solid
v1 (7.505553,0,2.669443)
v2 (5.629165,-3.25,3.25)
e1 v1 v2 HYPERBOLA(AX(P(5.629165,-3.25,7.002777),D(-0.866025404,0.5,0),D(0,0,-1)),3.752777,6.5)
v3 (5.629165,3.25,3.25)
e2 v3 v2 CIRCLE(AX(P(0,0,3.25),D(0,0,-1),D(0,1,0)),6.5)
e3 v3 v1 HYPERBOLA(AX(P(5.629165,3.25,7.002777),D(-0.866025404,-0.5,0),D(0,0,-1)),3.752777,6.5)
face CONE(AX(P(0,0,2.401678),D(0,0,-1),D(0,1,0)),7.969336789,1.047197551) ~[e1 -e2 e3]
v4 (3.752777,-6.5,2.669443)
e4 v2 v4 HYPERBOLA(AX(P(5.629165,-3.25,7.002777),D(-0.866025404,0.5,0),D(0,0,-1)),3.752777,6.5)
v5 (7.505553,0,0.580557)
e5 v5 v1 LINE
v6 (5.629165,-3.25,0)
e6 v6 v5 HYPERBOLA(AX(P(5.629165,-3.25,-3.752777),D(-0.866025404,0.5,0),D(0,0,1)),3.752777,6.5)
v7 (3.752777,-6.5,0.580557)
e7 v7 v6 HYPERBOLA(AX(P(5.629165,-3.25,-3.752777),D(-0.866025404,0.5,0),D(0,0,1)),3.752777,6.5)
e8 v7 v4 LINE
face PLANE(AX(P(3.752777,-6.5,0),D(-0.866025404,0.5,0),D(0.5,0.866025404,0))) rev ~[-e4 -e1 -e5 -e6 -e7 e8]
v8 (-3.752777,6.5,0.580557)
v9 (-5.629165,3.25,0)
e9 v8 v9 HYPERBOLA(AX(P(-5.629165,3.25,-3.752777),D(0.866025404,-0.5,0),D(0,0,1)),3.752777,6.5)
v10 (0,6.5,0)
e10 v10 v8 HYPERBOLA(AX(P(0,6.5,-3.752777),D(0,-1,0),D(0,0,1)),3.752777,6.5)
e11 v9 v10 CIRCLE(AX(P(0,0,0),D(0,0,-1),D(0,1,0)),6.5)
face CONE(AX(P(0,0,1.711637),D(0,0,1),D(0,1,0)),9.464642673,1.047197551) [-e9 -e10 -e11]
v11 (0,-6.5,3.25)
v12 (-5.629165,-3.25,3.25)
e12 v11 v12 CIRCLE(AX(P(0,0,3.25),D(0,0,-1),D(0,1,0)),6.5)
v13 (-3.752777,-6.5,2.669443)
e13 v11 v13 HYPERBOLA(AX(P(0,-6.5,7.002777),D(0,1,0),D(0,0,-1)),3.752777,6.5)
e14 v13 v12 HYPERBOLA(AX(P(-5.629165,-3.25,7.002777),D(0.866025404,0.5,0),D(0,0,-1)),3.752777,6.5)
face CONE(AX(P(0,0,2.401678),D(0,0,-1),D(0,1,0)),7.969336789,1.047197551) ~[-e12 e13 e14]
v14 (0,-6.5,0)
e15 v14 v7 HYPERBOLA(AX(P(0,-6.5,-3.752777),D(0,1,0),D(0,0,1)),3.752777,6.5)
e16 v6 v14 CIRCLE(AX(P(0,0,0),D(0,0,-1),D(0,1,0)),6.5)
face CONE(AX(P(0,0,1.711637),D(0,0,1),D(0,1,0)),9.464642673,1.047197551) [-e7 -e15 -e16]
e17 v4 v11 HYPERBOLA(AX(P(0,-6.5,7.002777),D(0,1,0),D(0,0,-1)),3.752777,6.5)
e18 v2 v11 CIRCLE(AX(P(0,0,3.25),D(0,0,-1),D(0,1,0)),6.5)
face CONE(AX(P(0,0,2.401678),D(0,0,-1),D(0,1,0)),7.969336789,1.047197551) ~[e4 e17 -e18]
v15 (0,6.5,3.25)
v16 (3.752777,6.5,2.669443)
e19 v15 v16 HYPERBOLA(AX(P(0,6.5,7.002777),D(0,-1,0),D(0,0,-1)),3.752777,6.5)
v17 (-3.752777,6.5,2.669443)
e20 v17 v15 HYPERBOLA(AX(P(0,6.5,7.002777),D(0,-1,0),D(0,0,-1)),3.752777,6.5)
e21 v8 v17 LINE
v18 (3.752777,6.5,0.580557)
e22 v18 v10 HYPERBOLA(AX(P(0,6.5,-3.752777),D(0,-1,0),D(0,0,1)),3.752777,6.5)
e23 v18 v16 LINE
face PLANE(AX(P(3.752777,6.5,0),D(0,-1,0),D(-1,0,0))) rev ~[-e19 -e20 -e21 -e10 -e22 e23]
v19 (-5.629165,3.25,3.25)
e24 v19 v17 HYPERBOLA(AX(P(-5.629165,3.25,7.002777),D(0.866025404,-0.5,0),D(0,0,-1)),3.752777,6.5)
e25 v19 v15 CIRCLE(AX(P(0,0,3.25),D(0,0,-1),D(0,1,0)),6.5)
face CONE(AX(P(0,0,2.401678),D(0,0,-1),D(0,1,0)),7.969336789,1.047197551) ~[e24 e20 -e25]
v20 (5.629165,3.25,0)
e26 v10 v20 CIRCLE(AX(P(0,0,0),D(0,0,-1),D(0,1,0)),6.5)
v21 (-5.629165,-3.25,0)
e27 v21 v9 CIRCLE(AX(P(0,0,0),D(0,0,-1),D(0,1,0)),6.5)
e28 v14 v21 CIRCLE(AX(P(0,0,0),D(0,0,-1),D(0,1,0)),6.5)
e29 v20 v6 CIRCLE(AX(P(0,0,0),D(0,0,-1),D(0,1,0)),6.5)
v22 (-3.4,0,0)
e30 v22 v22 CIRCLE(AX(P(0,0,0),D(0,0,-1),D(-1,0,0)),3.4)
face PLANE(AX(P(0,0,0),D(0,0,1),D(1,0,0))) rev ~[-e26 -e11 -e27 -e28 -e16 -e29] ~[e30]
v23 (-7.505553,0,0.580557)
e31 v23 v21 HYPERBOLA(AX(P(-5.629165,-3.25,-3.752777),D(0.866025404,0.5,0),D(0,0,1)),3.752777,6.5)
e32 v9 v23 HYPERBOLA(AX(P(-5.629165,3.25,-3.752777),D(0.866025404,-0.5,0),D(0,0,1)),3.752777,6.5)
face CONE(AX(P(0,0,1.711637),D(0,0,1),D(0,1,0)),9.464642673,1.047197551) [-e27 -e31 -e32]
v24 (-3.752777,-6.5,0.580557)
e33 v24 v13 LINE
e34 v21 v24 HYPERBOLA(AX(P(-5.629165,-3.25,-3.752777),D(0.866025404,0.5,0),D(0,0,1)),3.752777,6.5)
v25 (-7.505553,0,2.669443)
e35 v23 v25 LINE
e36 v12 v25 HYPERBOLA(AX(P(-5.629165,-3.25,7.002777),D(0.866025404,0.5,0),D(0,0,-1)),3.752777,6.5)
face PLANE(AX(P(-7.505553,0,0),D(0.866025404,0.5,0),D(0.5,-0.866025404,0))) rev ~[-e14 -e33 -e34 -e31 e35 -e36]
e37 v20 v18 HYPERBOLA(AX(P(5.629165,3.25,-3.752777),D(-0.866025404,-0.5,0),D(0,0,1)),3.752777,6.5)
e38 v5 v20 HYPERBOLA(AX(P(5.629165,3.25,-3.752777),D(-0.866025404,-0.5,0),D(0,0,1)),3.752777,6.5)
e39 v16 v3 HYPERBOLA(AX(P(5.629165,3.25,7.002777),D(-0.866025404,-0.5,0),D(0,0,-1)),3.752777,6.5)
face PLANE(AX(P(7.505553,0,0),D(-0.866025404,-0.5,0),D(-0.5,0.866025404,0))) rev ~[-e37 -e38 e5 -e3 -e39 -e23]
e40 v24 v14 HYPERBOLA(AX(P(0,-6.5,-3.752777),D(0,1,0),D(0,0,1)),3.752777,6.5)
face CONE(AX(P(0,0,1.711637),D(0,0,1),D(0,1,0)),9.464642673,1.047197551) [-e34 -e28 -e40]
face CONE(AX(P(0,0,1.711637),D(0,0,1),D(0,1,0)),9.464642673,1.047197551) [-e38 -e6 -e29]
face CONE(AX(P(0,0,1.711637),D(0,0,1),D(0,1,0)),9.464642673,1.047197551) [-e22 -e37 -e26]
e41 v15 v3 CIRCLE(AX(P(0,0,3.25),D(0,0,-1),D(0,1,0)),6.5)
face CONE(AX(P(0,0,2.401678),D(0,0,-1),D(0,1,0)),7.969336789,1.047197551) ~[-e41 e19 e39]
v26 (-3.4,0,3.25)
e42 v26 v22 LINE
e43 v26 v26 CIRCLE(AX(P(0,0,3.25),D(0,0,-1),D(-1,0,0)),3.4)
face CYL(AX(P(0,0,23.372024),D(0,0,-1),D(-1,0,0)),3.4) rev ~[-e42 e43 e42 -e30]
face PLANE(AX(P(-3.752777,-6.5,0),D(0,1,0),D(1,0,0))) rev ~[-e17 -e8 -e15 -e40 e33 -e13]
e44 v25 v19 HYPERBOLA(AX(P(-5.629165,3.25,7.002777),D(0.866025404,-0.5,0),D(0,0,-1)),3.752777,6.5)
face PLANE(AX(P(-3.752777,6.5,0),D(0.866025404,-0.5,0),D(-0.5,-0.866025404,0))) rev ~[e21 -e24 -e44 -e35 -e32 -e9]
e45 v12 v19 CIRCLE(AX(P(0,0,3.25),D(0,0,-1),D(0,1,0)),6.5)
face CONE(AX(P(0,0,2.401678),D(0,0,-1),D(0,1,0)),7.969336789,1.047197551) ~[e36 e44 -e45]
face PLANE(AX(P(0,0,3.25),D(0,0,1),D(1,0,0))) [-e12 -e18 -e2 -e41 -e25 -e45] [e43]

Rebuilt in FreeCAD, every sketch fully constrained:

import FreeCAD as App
import Part
import Sketcher
from FreeCAD import Vector
Q = App.Units.Quantity

doc = App.newDocument("Part")
params = doc.addObject("Spreadsheet::Sheet", "Params")
for row, (alias, value) in enumerate([
    ("pad1_length", "3.25 mm"),
    ("groove_angle", "360 deg"),
    ("sketch3_diameter", "6.8 mm"),
    ("hole_diameter", "6.8 mm"),
], start=1):
    params.set(f"A{row}", alias)
    params.set(f"B{row}", "=" + value)
    params.setAlias(f"B{row}", alias)

body = doc.addObject("PartDesign::Body", "Body")

# Sketch on XY plane
sketch1 = body.newObject("Sketcher::SketchObject", "Sketch")
sketch1.AttachmentSupport = (doc.getObject("XY_Plane"), [""])
sketch1.MapMode = "FlatFace"
sketch1.addGeometry([
    Part.LineSegment(Vector(3.752777, -6.5, 0), Vector(7.505553, 0, 0)),  # 0
    Part.LineSegment(Vector(7.505553, 0, 0), Vector(3.752777, 6.5, 0)),  # 1
    Part.LineSegment(Vector(3.752777, 6.5, 0), Vector(-3.752777, 6.5, 0)),  # 2
    Part.LineSegment(Vector(-3.752777, 6.5, 0), Vector(-7.505553, 0, 0)),  # 3
    Part.LineSegment(Vector(-7.505553, 0, 0), Vector(-3.752777, -6.5, 0)),  # 4
    Part.LineSegment(Vector(-3.752777, -6.5, 0), Vector(3.752777, -6.5, 0)),  # 5
], False)
sketch1.addConstraint([
    Sketcher.Constraint("Coincident", 0, 2, 1, 1),
    Sketcher.Constraint("Coincident", 1, 2, 2, 1),
    Sketcher.Constraint("Coincident", 2, 2, 3, 1),
    Sketcher.Constraint("Coincident", 3, 2, 4, 1),
    Sketcher.Constraint("Coincident", 4, 2, 5, 1),
    Sketcher.Constraint("Coincident", 5, 2, 0, 1),
    Sketcher.Constraint("Horizontal", 2),
    Sketcher.Constraint("Horizontal", 5),
    Sketcher.Constraint("Symmetric", 0, 2, 3, 2, -1, 1),
    Sketcher.Constraint("Symmetric", 1, 2, 4, 2, -1, 1),
    Sketcher.Constraint("PointOnObject", 0, 2, -1),
    Sketcher.Constraint("Parallel", 0, 3),
    Sketcher.Constraint("Vertical", 2, 2, 4, 2),
    Sketcher.Constraint("Angle", 0, Q("60 deg")),
    Sketcher.Constraint("DistanceY", 4, 2, 2, 2, Q("13 mm")),
    Sketcher.Constraint("DistanceX", 2, 2, 2, 1, Q("7.505554 mm")),
])
pad1 = body.newObject("PartDesign::Pad", "Pad")
pad1.Profile = sketch1
pad1.setExpression("Length", "Params.pad1_length")

# Sketch on YZ plane
sketch2 = body.newObject("Sketcher::SketchObject", "Sketch001")
sketch2.AttachmentSupport = (doc.getObject("YZ_Plane"), [""])
sketch2.MapMode = "FlatFace"
sketch2.addGeometry([
    Part.LineSegment(Vector(9.464643, 1.711637, 0), Vector(6.5, 0, 0)),  # 0
    Part.LineSegment(Vector(6.5, 0, 0), Vector(9.464643, 0, 0)),  # 1
    Part.LineSegment(Vector(9.464643, 0, 0), Vector(9.464643, 1.711637, 0)),  # 2
    Part.LineSegment(Vector(7.969337, 3.25, 0), Vector(6.5, 3.25, 0)),  # 3
    Part.LineSegment(Vector(6.5, 3.25, 0), Vector(7.969337, 2.401678, 0)),  # 4
    Part.LineSegment(Vector(7.969337, 2.401678, 0), Vector(7.969337, 3.25, 0)),  # 5
], False)
sketch2.addConstraint([
    Sketcher.Constraint("Coincident", 0, 2, 1, 1),
    Sketcher.Constraint("Coincident", 1, 2, 2, 1),
    Sketcher.Constraint("Coincident", 2, 2, 0, 1),
    Sketcher.Constraint("Coincident", 3, 2, 4, 1),
    Sketcher.Constraint("Coincident", 4, 2, 5, 1),
    Sketcher.Constraint("Coincident", 5, 2, 3, 1),
    Sketcher.Constraint("Horizontal", 1),
    Sketcher.Constraint("Vertical", 2),
    Sketcher.Constraint("Horizontal", 3),
    Sketcher.Constraint("Vertical", 5),
    Sketcher.Constraint("PointOnObject", 0, 2, -1),
    Sketcher.Constraint("Vertical", 0, 2, 3, 2),
    Sketcher.Constraint("Angle", 0, Q("-150 deg")),
    Sketcher.Constraint("Angle", 4, Q("-30 deg")),
    Sketcher.Constraint("DistanceX", -1, 1, 0, 2, Q("6.5 mm")),
    Sketcher.Constraint("DistanceY", -1, 1, 3, 2, Q("3.25 mm")),
    Sketcher.Constraint("DistanceY", 5, 1, 5, 2, Q("0.848322 mm")),
    Sketcher.Constraint("DistanceX", 1, 1, 1, 2, Q("2.964643 mm")),
])
groove = body.newObject("PartDesign::Groove", "Groove")
groove.Profile = sketch2
groove.ReferenceAxis = (sketch2, ["V_Axis"])
groove.setExpression("Angle", "Params.groove_angle")

# Sketch on XY plane
sketch3 = body.newObject("Sketcher::SketchObject", "Sketch002")
sketch3.AttachmentSupport = (doc.getObject("XY_Plane"), [""])
sketch3.MapMode = "FlatFace"
sketch3.AttachmentOffset = App.Placement(Vector(0, 0, 3.25), App.Rotation())
sketch3.addGeometry(Part.Circle(Vector(0, 0, 0), Vector(0, 0, 1), 3.4), False)
sketch3.addConstraint([
    Sketcher.Constraint("Coincident", 0, 3, -1, 1),
    Sketcher.Constraint("Diameter", 0, Q("6.8 mm")),
])
sketch3.setExpression("Constraints[1]", "Params.sketch3_diameter")
doc.recompute()
hole = body.newObject("PartDesign::Hole", "Hole")
hole.Profile = sketch3
hole.ThreadType = "None"
hole.setExpression("Diameter", "Params.hole_diameter")
hole.DepthType = "ThroughAll"

doc.recompute()
